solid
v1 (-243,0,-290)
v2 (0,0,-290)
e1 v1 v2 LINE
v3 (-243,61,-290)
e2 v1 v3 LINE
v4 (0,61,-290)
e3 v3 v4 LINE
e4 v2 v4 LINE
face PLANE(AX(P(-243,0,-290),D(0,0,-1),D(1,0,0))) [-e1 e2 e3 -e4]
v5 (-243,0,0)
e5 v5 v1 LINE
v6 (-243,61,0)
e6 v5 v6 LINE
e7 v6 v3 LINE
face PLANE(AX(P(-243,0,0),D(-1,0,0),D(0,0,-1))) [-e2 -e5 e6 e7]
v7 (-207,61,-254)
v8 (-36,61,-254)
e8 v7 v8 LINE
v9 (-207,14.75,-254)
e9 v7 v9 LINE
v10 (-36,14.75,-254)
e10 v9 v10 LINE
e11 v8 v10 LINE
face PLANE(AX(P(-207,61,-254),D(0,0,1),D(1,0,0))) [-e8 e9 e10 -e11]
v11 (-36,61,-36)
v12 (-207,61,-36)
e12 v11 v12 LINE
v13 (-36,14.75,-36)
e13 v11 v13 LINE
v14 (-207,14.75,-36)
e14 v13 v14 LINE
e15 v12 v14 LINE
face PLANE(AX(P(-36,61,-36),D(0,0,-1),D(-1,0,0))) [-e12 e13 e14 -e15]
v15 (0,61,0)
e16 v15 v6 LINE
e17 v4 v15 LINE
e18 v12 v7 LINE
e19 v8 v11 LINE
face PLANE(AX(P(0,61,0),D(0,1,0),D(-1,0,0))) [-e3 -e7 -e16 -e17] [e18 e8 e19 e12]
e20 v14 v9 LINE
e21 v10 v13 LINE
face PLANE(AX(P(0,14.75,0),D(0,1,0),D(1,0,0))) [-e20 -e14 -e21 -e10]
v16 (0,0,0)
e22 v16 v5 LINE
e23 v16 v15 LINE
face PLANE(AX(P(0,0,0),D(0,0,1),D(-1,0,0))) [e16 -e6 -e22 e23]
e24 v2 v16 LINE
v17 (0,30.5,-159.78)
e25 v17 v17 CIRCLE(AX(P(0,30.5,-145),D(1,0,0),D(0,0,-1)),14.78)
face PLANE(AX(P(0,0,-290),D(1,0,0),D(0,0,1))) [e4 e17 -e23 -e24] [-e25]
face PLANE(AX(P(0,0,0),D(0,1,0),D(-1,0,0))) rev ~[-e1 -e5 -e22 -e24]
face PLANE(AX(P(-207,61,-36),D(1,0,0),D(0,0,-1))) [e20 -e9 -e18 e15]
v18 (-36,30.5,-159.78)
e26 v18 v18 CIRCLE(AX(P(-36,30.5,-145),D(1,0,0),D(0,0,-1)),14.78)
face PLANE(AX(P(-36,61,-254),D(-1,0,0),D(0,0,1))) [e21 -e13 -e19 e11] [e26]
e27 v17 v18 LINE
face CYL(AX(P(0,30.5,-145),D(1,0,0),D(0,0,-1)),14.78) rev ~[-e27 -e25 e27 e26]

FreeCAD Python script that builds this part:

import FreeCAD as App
import Part
import Sketcher


def add_polygon(sketch, points):
    """Adds a closed chain of lines whose ends are joined by coincident constraints."""
    first, n = sketch.GeometryCount, len(points)
    for a, b in zip(points, points[1:] + points[:1]):
        sketch.addGeometry(Part.LineSegment(App.Vector(*a, 0), App.Vector(*b, 0)), False)
    for i in range(n):
        sketch.addConstraint(Sketcher.Constraint("Coincident", first + i, 2, first + (i + 1) % n, 1))

doc = App.newDocument("Part")
body = doc.addObject("PartDesign::Body", "Body")

# Sketch on XZ plane
sketch1 = body.newObject("Sketcher::SketchObject", "Sketch")
sketch1.AttachmentSupport = (doc.getObject("XZ_Plane"), [""])
sketch1.MapMode = "FlatFace"
add_polygon(sketch1, [(-243, 0), (0, 0), (0, -290), (-243, -290)])  # lines 0-3
sketch1.addConstraint([
    Sketcher.Constraint("Horizontal", 0),
    Sketcher.Constraint("Vertical", 1),
    Sketcher.Constraint("Horizontal", 2),
    Sketcher.Constraint("Vertical", 3),
    Sketcher.Constraint("Coincident", 0, 2, -1, 1),
    Sketcher.Constraint("DistanceX", 0, 1, 0, 2, 243.0),
    Sketcher.Constraint("DistanceY", 1, 2, 1, 1, 290.0),
])
pad1 = body.newObject("PartDesign::Pad", "Pad")
pad1.Profile = sketch1
pad1.Length = 61
pad1.Reversed = True

# Sketch on YZ plane
sketch2 = body.newObject("Sketcher::SketchObject", "Sketch001")
sketch2.AttachmentSupport = (doc.getObject("YZ_Plane"), [""])
sketch2.MapMode = "FlatFace"
sketch2.addGeometry(Part.Circle(App.Vector(30.5, -145, 0), App.Vector(0, 0, 1), 14.78), False)
sketch2.addConstraint([
    Sketcher.Constraint("Diameter", 0, 29.56),
    Sketcher.Constraint("DistanceY", 0, 3, -1, 1, 145.0),
    Sketcher.Constraint("DistanceX", -1, 1, 0, 3, 30.5),
])
pocket1 = body.newObject("PartDesign::Pocket", "Pocket")
pocket1.Profile = sketch2
pocket1.Length = 69.75

# Sketch on XZ plane
sketch3 = body.newObject("Sketcher::SketchObject", "Sketch002")
sketch3.AttachmentSupport = (doc.getObject("XZ_Plane"), [""])
sketch3.MapMode = "FlatFace"
sketch3.AttachmentOffset = App.Placement(App.Vector(0, 0, -61), App.Rotation())
add_polygon(sketch3, [(-207, -254), (-207, -36), (-36, -36), (-36, -254)])  # lines 0-3
sketch3.addConstraint([
    Sketcher.Constraint("Vertical", 0),
    Sketcher.Constraint("Horizontal", 1),
    Sketcher.Constraint("Vertical", 2),
    Sketcher.Constraint("Horizontal", 3),
    Sketcher.Constraint("DistanceY", 0, 2, -1, 1, 36.0),
    Sketcher.Constraint("DistanceX", 1, 2, -1, 1, 36.0),
    Sketcher.Constraint("DistanceX", 1, 1, 1, 2, 171.0),
    Sketcher.Constraint("DistanceY", 0, 1, 0, 2, 218.0),
])
pocket2 = body.newObject("PartDesign::Pocket", "Pocket001")
pocket2.Profile = sketch3
pocket2.Length = 46.25
pocket2.Reversed = True

doc.recompute()
